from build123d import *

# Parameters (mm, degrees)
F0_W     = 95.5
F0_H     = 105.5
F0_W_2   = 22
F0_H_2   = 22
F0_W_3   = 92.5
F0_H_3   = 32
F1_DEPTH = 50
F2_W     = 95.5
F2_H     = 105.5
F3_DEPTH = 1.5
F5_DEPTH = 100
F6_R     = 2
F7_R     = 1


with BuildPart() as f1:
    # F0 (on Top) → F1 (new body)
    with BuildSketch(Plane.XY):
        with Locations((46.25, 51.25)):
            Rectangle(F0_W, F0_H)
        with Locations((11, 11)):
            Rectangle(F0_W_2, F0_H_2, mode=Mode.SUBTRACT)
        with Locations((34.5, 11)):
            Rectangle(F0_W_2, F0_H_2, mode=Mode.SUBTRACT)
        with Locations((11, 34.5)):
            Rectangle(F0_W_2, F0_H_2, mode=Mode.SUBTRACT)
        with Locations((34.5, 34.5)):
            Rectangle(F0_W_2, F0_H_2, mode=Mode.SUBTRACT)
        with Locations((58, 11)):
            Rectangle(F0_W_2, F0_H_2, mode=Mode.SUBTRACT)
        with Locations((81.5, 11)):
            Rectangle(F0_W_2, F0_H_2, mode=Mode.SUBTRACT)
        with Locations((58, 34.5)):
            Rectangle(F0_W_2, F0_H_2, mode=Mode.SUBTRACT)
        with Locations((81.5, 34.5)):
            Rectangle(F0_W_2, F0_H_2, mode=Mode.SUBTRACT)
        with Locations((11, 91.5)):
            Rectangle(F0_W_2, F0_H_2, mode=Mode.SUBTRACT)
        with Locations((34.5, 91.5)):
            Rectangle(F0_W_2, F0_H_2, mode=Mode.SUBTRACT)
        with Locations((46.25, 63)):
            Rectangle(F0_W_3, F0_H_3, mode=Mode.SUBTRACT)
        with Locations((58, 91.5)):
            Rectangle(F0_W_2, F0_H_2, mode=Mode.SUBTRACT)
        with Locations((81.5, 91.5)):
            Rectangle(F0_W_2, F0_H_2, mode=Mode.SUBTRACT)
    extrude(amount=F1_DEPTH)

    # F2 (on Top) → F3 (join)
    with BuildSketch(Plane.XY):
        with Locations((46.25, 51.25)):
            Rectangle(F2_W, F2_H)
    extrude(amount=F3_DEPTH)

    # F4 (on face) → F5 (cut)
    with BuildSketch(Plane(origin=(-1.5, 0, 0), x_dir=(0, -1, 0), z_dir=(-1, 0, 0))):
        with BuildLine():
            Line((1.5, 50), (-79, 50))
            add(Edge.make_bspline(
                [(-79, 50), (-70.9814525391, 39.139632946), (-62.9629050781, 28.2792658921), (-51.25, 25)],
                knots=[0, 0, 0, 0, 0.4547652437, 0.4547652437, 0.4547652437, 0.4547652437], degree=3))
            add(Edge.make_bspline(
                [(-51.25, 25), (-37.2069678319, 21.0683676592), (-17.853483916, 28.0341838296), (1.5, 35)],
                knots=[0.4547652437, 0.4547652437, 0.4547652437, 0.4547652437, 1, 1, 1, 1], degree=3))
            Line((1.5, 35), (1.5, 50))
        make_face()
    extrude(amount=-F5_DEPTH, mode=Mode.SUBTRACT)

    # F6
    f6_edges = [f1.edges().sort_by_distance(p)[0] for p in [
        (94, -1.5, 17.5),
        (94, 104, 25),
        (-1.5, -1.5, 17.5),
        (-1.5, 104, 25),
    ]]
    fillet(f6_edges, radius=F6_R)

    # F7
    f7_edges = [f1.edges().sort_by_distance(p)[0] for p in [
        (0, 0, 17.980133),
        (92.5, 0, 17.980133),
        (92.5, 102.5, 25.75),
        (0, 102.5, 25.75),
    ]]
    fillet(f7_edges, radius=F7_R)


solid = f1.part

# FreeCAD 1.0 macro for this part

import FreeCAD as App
import Part
import Sketcher


def edges_at(feature, points):
    """Names of the edges that pass closest to the given points."""
    edges = feature.Shape.Edges
    near = lambda p: min(range(len(edges)), key=lambda i: edges[i].distToShape(Part.Vertex(*p))[0])
    return sorted({f"Edge{near(p) + 1}" for p in points})

doc = App.newDocument("Part")
body = doc.addObject("PartDesign::Body", "Body")

# Sketch on XY plane
sketch1 = doc.addObject("Sketcher::SketchObject", "Sketch")
body.addObject(sketch1)
sketch1.AttachmentSupport = (doc.XY_Plane, [""])
sketch1.MapMode = "FlatFace"
sketch1.addGeometry(Part.LineSegment(App.Vector(-1.5, 104, 0), App.Vector(-1.5, -1.5, 0)), False)
sketch1.addGeometry(Part.LineSegment(App.Vector(-1.5, -1.5, 0), App.Vector(94, -1.5, 0)), False)
sketch1.addGeometry(Part.LineSegment(App.Vector(94, -1.5, 0), App.Vector(94, 104, 0)), False)
sketch1.addGeometry(Part.LineSegment(App.Vector(94, 104, 0), App.Vector(-1.5, 104, 0)), False)
sketch1.addGeometry(Part.LineSegment(App.Vector(22, 0, 0), App.Vector(0, 0, 0)), False)
sketch1.addGeometry(Part.LineSegment(App.Vector(0, 0, 0), App.Vector(0, 22, 0)), False)
sketch1.addGeometry(Part.LineSegment(App.Vector(0, 22, 0), App.Vector(22, 22, 0)), False)
sketch1.addGeometry(Part.LineSegment(App.Vector(22, 22, 0), App.Vector(22, 0, 0)), False)
sketch1.addGeometry(Part.LineSegment(App.Vector(45.5, 0, 0), App.Vector(23.5, 0, 0)), False)
sketch1.addGeometry(Part.LineSegment(App.Vector(23.5, 0, 0), App.Vector(23.5, 22, 0)), False)
sketch1.addGeometry(Part.LineSegment(App.Vector(23.5, 22, 0), App.Vector(45.5, 22, 0)), False)
sketch1.addGeometry(Part.LineSegment(App.Vector(45.5, 22, 0), App.Vector(45.5, 0, 0)), False)
sketch1.addGeometry(Part.LineSegment(App.Vector(22, 23.5, 0), App.Vector(0, 23.5, 0)), False)
sketch1.addGeometry(Part.LineSegment(App.Vector(0, 23.5, 0), App.Vector(0, 45.5, 0)), False)
sketch1.addGeometry(Part.LineSegment(App.Vector(0, 45.5, 0), App.Vector(22, 45.5, 0)), False)
sketch1.addGeometry(Part.LineSegment(App.Vector(22, 45.5, 0), App.Vector(22, 23.5, 0)), False)
sketch1.addGeometry(Part.LineSegment(App.Vector(45.5, 23.5, 0), App.Vector(23.5, 23.5, 0)), False)
sketch1.addGeometry(Part.LineSegment(App.Vector(23.5, 23.5, 0), App.Vector(23.5, 45.5, 0)), False)
sketch1.addGeometry(Part.LineSegment(App.Vector(23.5, 45.5, 0), App.Vector(45.5, 45.5, 0)), False)
sketch1.addGeometry(Part.LineSegment(App.Vector(45.5, 45.5, 0), App.Vector(45.5, 23.5, 0)), False)
sketch1.addGeometry(Part.LineSegment(App.Vector(69, 0, 0), App.Vector(47, 0, 0)), False)
sketch1.addGeometry(Part.LineSegment(App.Vector(47, 0, 0), App.Vector(47, 22, 0)), False)
sketch1.addGeometry(Part.LineSegment(App.Vector(47, 22, 0), App.Vector(69, 22, 0)), False)
sketch1.addGeometry(Part.LineSegment(App.Vector(69, 22, 0), App.Vector(69, 0, 0)), False)
sketch1.addGeometry(Part.LineSegment(App.Vector(92.5, 0, 0), App.Vector(70.5, 0, 0)), False)
sketch1.addGeometry(Part.LineSegment(App.Vector(70.5, 0, 0), App.Vector(70.5, 22, 0)), False)
sketch1.addGeometry(Part.LineSegment(App.Vector(70.5, 22, 0), App.Vector(92.5, 22, 0)), False)
sketch1.addGeometry(Part.LineSegment(App.Vector(92.5, 22, 0), App.Vector(92.5, 0, 0)), False)
sketch1.addGeometry(Part.LineSegment(App.Vector(69, 23.5, 0), App.Vector(47, 23.5, 0)), False)
sketch1.addGeometry(Part.LineSegment(App.Vector(47, 23.5, 0), App.Vector(47, 45.5, 0)), False)
sketch1.addGeometry(Part.LineSegment(App.Vector(47, 45.5, 0), App.Vector(69, 45.5, 0)), False)
sketch1.addGeometry(Part.LineSegment(App.Vector(69, 45.5, 0), App.Vector(69, 23.5, 0)), False)
sketch1.addGeometry(Part.LineSegment(App.Vector(92.5, 23.5, 0), App.Vector(70.5, 23.5, 0)), False)
sketch1.addGeometry(Part.LineSegment(App.Vector(70.5, 23.5, 0), App.Vector(70.5, 45.5, 0)), False)
sketch1.addGeometry(Part.LineSegment(App.Vector(70.5, 45.5, 0), App.Vector(92.5, 45.5, 0)), False)
sketch1.addGeometry(Part.LineSegment(App.Vector(92.5, 45.5, 0), App.Vector(92.5, 23.5, 0)), False)
sketch1.addGeometry(Part.LineSegment(App.Vector(22, 80.5, 0), App.Vector(0, 80.5, 0)), False)
sketch1.addGeometry(Part.LineSegment(App.Vector(0, 80.5, 0), App.Vector(0, 102.5, 0)), False)
sketch1.addGeometry(Part.LineSegment(App.Vector(0, 102.5, 0), App.Vector(22, 102.5, 0)), False)
sketch1.addGeometry(Part.LineSegment(App.Vector(22, 102.5, 0), App.Vector(22, 80.5, 0)), False)
sketch1.addGeometry(Part.LineSegment(App.Vector(45.5, 80.5, 0), App.Vector(23.5, 80.5, 0)), False)
sketch1.addGeometry(Part.LineSegment(App.Vector(23.5, 80.5, 0), App.Vector(23.5, 102.5, 0)), False)
sketch1.addGeometry(Part.LineSegment(App.Vector(23.5, 102.5, 0), App.Vector(45.5, 102.5, 0)), False)
sketch1.addGeometry(Part.LineSegment(App.Vector(45.5, 102.5, 0), App.Vector(45.5, 80.5, 0)), False)
sketch1.addGeometry(Part.LineSegment(App.Vector(92.5, 47, 0), App.Vector(0, 47, 0)), False)
sketch1.addGeometry(Part.LineSegment(App.Vector(0, 47, 0), App.Vector(0, 79, 0)), False)
sketch1.addGeometry(Part.LineSegment(App.Vector(0, 79, 0), App.Vector(92.5, 79, 0)), False)
sketch1.addGeometry(Part.LineSegment(App.Vector(92.5, 79, 0), App.Vector(92.5, 47, 0)), False)
sketch1.addGeometry(Part.LineSegment(App.Vector(69, 80.5, 0), App.Vector(47, 80.5, 0)), False)
sketch1.addGeometry(Part.LineSegment(App.Vector(47, 80.5, 0), App.Vector(47, 102.5, 0)), False)
sketch1.addGeometry(Part.LineSegment(App.Vector(47, 102.5, 0), App.Vector(69, 102.5, 0)), False)
sketch1.addGeometry(Part.LineSegment(App.Vector(69, 102.5, 0), App.Vector(69, 80.5, 0)), False)
sketch1.addGeometry(Part.LineSegment(App.Vector(92.5, 80.5, 0), App.Vector(70.5, 80.5, 0)), False)
sketch1.addGeometry(Part.LineSegment(App.Vector(70.5, 80.5, 0), App.Vector(70.5, 102.5, 0)), False)
sketch1.addGeometry(Part.LineSegment(App.Vector(70.5, 102.5, 0), App.Vector(92.5, 102.5, 0)), False)
sketch1.addGeometry(Part.LineSegment(App.Vector(92.5, 102.5, 0), App.Vector(92.5, 80.5, 0)), False)
sketch1.addConstraint(Sketcher.Constraint("Coincident", 0, 2, 1, 1))
sketch1.addConstraint(Sketcher.Constraint("Coincident", 1, 2, 2, 1))
sketch1.addConstraint(Sketcher.Constraint("Coincident", 2, 2, 3, 1))
sketch1.addConstraint(Sketcher.Constraint("Coincident", 3, 2, 0, 1))
sketch1.addConstraint(Sketcher.Constraint("Coincident", 4, 2, 5, 1))
sketch1.addConstraint(Sketcher.Constraint("Coincident", 5, 2, 6, 1))
sketch1.addConstraint(Sketcher.Constraint("Coincident", 6, 2, 7, 1))
sketch1.addConstraint(Sketcher.Constraint("Coincident", 7, 2, 4, 1))
sketch1.addConstraint(Sketcher.Constraint("Coincident", 8, 2, 9, 1))
sketch1.addConstraint(Sketcher.Constraint("Coincident", 9, 2, 10, 1))
sketch1.addConstraint(Sketcher.Constraint("Coincident", 10, 2, 11, 1))
sketch1.addConstraint(Sketcher.Constraint("Coincident", 11, 2, 8, 1))
sketch1.addConstraint(Sketcher.Constraint("Coincident", 12, 2, 13, 1))
sketch1.addConstraint(Sketcher.Constraint("Coincident", 13, 2, 14, 1))
sketch1.addConstraint(Sketcher.Constraint("Coincident", 14, 2, 15, 1))
sketch1.addConstraint(Sketcher.Constraint("Coincident", 15, 2, 12, 1))
sketch1.addConstraint(Sketcher.Constraint("Coincident", 16, 2, 17, 1))
sketch1.addConstraint(Sketcher.Constraint("Coincident", 17, 2, 18, 1))
sketch1.addConstraint(Sketcher.Constraint("Coincident", 18, 2, 19, 1))
sketch1.addConstraint(Sketcher.Constraint("Coincident", 19, 2, 16, 1))
sketch1.addConstraint(Sketcher.Constraint("Coincident", 20, 2, 21, 1))
sketch1.addConstraint(Sketcher.Constraint("Coincident", 21, 2, 22, 1))
sketch1.addConstraint(Sketcher.Constraint("Coincident", 22, 2, 23, 1))
sketch1.addConstraint(Sketcher.Constraint("Coincident", 23, 2, 20, 1))
sketch1.addConstraint(Sketcher.Constraint("Coincident", 24, 2, 25, 1))
sketch1.addConstraint(Sketcher.Constraint("Coincident", 25, 2, 26, 1))
sketch1.addConstraint(Sketcher.Constraint("Coincident", 26, 2, 27, 1))
sketch1.addConstraint(Sketcher.Constraint("Coincident", 27, 2, 24, 1))
sketch1.addConstraint(Sketcher.Constraint("Coincident", 28, 2, 29, 1))
sketch1.addConstraint(Sketcher.Constraint("Coincident", 29, 2, 30, 1))
sketch1.addConstraint(Sketcher.Constraint("Coincident", 30, 2, 31, 1))
sketch1.addConstraint(Sketcher.Constraint("Coincident", 31, 2, 28, 1))
sketch1.addConstraint(Sketcher.Constraint("Coincident", 32, 2, 33, 1))
sketch1.addConstraint(Sketcher.Constraint("Coincident", 33, 2, 34, 1))
sketch1.addConstraint(Sketcher.Constraint("Coincident", 34, 2, 35, 1))
sketch1.addConstraint(Sketcher.Constraint("Coincident", 35, 2, 32, 1))
sketch1.addConstraint(Sketcher.Constraint("Coincident", 36, 2, 37, 1))
sketch1.addConstraint(Sketcher.Constraint("Coincident", 37, 2, 38, 1))
sketch1.addConstraint(Sketcher.Constraint("Coincident", 38, 2, 39, 1))
sketch1.addConstraint(Sketcher.Constraint("Coincident", 39, 2, 36, 1))
sketch1.addConstraint(Sketcher.Constraint("Coincident", 40, 2, 41, 1))
sketch1.addConstraint(Sketcher.Constraint("Coincident", 41, 2, 42, 1))
sketch1.addConstraint(Sketcher.Constraint("Coincident", 42, 2, 43, 1))
sketch1.addConstraint(Sketcher.Constraint("Coincident", 43, 2, 40, 1))
sketch1.addConstraint(Sketcher.Constraint("Coincident", 44, 2, 45, 1))
sketch1.addConstraint(Sketcher.Constraint("Coincident", 45, 2, 46, 1))
sketch1.addConstraint(Sketcher.Constraint("Coincident", 46, 2, 47, 1))
sketch1.addConstraint(Sketcher.Constraint("Coincident", 47, 2, 44, 1))
sketch1.addConstraint(Sketcher.Constraint("Coincident", 48, 2, 49, 1))
sketch1.addConstraint(Sketcher.Constraint("Coincident", 49, 2, 50, 1))
sketch1.addConstraint(Sketcher.Constraint("Coincident", 50, 2, 51, 1))
sketch1.addConstraint(Sketcher.Constraint("Coincident", 51, 2, 48, 1))
sketch1.addConstraint(Sketcher.Constraint("Coincident", 52, 2, 53, 1))
sketch1.addConstraint(Sketcher.Constraint("Coincident", 53, 2, 54, 1))
sketch1.addConstraint(Sketcher.Constraint("Coincident", 54, 2, 55, 1))
sketch1.addConstraint(Sketcher.Constraint("Coincident", 55, 2, 52, 1))
sketch1.addConstraint(Sketcher.Constraint("Vertical", 0))
sketch1.addConstraint(Sketcher.Constraint("Horizontal", 1))
sketch1.addConstraint(Sketcher.Constraint("Vertical", 2))
sketch1.addConstraint(Sketcher.Constraint("Horizontal", 3))
sketch1.addConstraint(Sketcher.Constraint("Horizontal", 4))
sketch1.addConstraint(Sketcher.Constraint("Vertical", 5))
sketch1.addConstraint(Sketcher.Constraint("Horizontal", 6))
sketch1.addConstraint(Sketcher.Constraint("Vertical", 7))
sketch1.addConstraint(Sketcher.Constraint("Horizontal", 8))
sketch1.addConstraint(Sketcher.Constraint("Vertical", 9))
sketch1.addConstraint(Sketcher.Constraint("Horizontal", 10))
sketch1.addConstraint(Sketcher.Constraint("Vertical", 11))
sketch1.addConstraint(Sketcher.Constraint("Horizontal", 12))
sketch1.addConstraint(Sketcher.Constraint("Vertical", 13))
sketch1.addConstraint(Sketcher.Constraint("Horizontal", 14))
sketch1.addConstraint(Sketcher.Constraint("Vertical", 15))
sketch1.addConstraint(Sketcher.Constraint("Horizontal", 16))
sketch1.addConstraint(Sketcher.Constraint("Vertical", 17))
sketch1.addConstraint(Sketcher.Constraint("Horizontal", 18))
sketch1.addConstraint(Sketcher.Constraint("Vertical", 19))
sketch1.addConstraint(Sketcher.Constraint("Horizontal", 20))
sketch1.addConstraint(Sketcher.Constraint("Vertical", 21))
sketch1.addConstraint(Sketcher.Constraint("Horizontal", 22))
sketch1.addConstraint(Sketcher.Constraint("Vertical", 23))
sketch1.addConstraint(Sketcher.Constraint("Horizontal", 24))
sketch1.addConstraint(Sketcher.Constraint("Vertical", 25))
sketch1.addConstraint(Sketcher.Constraint("Horizontal", 26))
sketch1.addConstraint(Sketcher.Constraint("Vertical", 27))
sketch1.addConstraint(Sketcher.Constraint("Horizontal", 28))
sketch1.addConstraint(Sketcher.Constraint("Vertical", 29))
sketch1.addConstraint(Sketcher.Constraint("Horizontal", 30))
sketch1.addConstraint(Sketcher.Constraint("Vertical", 31))
sketch1.addConstraint(Sketcher.Constraint("Horizontal", 32))
sketch1.addConstraint(Sketcher.Constraint("Vertical", 33))
sketch1.addConstraint(Sketcher.Constraint("Horizontal", 34))
sketch1.addConstraint(Sketcher.Constraint("Vertical", 35))
sketch1.addConstraint(Sketcher.Constraint("Horizontal", 36))
sketch1.addConstraint(Sketcher.Constraint("Vertical", 37))
sketch1.addConstraint(Sketcher.Constraint("Horizontal", 38))
sketch1.addConstraint(Sketcher.Constraint("Vertical", 39))
sketch1.addConstraint(Sketcher.Constraint("Horizontal", 40))
sketch1.addConstraint(Sketcher.Constraint("Vertical", 41))
sketch1.addConstraint(Sketcher.Constraint("Horizontal", 42))
sketch1.addConstraint(Sketcher.Constraint("Vertical", 43))
sketch1.addConstraint(Sketcher.Constraint("Horizontal", 44))
sketch1.addConstraint(Sketcher.Constraint("Vertical", 45))
sketch1.addConstraint(Sketcher.Constraint("Horizontal", 46))
sketch1.addConstraint(Sketcher.Constraint("Vertical", 47))
sketch1.addConstraint(Sketcher.Constraint("Horizontal", 48))
sketch1.addConstraint(Sketcher.Constraint("Vertical", 49))
sketch1.addConstraint(Sketcher.Constraint("Horizontal", 50))
sketch1.addConstraint(Sketcher.Constraint("Vertical", 51))
sketch1.addConstraint(Sketcher.Constraint("Horizontal", 52))
sketch1.addConstraint(Sketcher.Constraint("Vertical", 53))
sketch1.addConstraint(Sketcher.Constraint("Horizontal", 54))
sketch1.addConstraint(Sketcher.Constraint("Vertical", 55))
sketch1.addConstraint(Sketcher.Constraint("Coincident", 4, 2, -1, 1))
sketch1.addConstraint(Sketcher.Constraint("PointOnObject", 8, 2, -1))
sketch1.addConstraint(Sketcher.Constraint("PointOnObject", 12, 2, -2))
sketch1.addConstraint(Sketcher.Constraint("PointOnObject", 20, 2, -1))
sketch1.addConstraint(Sketcher.Constraint("PointOnObject", 24, 2, -1))
sketch1.addConstraint(Sketcher.Constraint("PointOnObject", 36, 2, -2))
sketch1.addConstraint(Sketcher.Constraint("PointOnObject", 44, 2, -2))
sketch1.addConstraint(Sketcher.Constraint("Horizontal", 6, 2, 9, 2))
sketch1.addConstraint(Sketcher.Constraint("Horizontal", 15, 2, 16, 2))
sketch1.addConstraint(Sketcher.Constraint("Horizontal", 14, 2, 17, 2))
sketch1.addConstraint(Sketcher.Constraint("Horizontal", 10, 2, 21, 2))
sketch1.addConstraint(Sketcher.Constraint("Horizontal", 22, 2, 25, 2))
sketch1.addConstraint(Sketcher.Constraint("Horizontal", 19, 2, 28, 2))
sketch1.addConstraint(Sketcher.Constraint("Horizontal", 18, 2, 29, 2))
sketch1.addConstraint(Sketcher.Constraint("Horizontal", 31, 2, 32, 2))
sketch1.addConstraint(Sketcher.Constraint("Horizontal", 30, 2, 33, 2))
sketch1.addConstraint(Sketcher.Constraint("Horizontal", 39, 2, 40, 2))
sketch1.addConstraint(Sketcher.Constraint("Horizontal", 38, 2, 41, 2))
sketch1.addConstraint(Sketcher.Constraint("Horizontal", 43, 2, 48, 2))
sketch1.addConstraint(Sketcher.Constraint("Horizontal", 42, 2, 49, 2))
sketch1.addConstraint(Sketcher.Constraint("Horizontal", 51, 2, 52, 2))
sketch1.addConstraint(Sketcher.Constraint("Horizontal", 50, 2, 53, 2))
sketch1.addConstraint(Sketcher.Constraint("Vertical", 7, 2, 14, 2))
sketch1.addConstraint(Sketcher.Constraint("Vertical", 9, 2, 16, 2))
sketch1.addConstraint(Sketcher.Constraint("Vertical", 11, 2, 18, 2))
sketch1.addConstraint(Sketcher.Constraint("Vertical", 21, 2, 28, 2))
sketch1.addConstraint(Sketcher.Constraint("Vertical", 23, 2, 30, 2))
sketch1.addConstraint(Sketcher.Constraint("Vertical", 25, 2, 32, 2))
sketch1.addConstraint(Sketcher.Constraint("Vertical", 27, 2, 34, 2))
sketch1.addConstraint(Sketcher.Constraint("Vertical", 15, 2, 38, 2))
sketch1.addConstraint(Sketcher.Constraint("Vertical", 17, 2, 40, 2))
sketch1.addConstraint(Sketcher.Constraint("Vertical", 19, 2, 42, 2))
sketch1.addConstraint(Sketcher.Constraint("Vertical", 35, 2, 46, 2))
sketch1.addConstraint(Sketcher.Constraint("Vertical", 29, 2, 48, 2))
sketch1.addConstraint(Sketcher.Constraint("Vertical", 31, 2, 50, 2))
sketch1.addConstraint(Sketcher.Constraint("Vertical", 33, 2, 52, 2))
sketch1.addConstraint(Sketcher.Constraint("Vertical", 47, 2, 54, 2))
sketch1.addConstraint(Sketcher.Constraint("Equal", 6, 8))
sketch1.addConstraint(Sketcher.Constraint("Equal", 18, 20))
sketch1.addConstraint(Sketcher.Constraint("Equal", 22, 24))
sketch1.addConstraint(Sketcher.Constraint("Equal", 54, 5))
sketch1.addConstraint(Sketcher.Constraint("Equal", 11, 13))
sketch1.addConstraint(Sketcher.Constraint("Equal", 35, 37))
sketch1.addConstraint(Sketcher.Constraint("DistanceX", 4, 2, 4, 1, 22.0))
sketch1.addConstraint(Sketcher.Constraint("DistanceY", 45, 1, 45, 2, 32.0))
sketch1.addConstraint(Sketcher.Constraint("DistanceX", 1, 1, 1, 2, 95.5))
sketch1.addConstraint(Sketcher.Constraint("DistanceX", 44, 2, 44, 1, 92.5))
sketch1.addConstraint(Sketcher.Constraint("DistanceY", 0, 2, 0, 1, 105.5))
sketch1.addConstraint(Sketcher.Constraint("DistanceX", -1, 1, 1, 2, 94.0))
sketch1.addConstraint(Sketcher.Constraint("DistanceY", -1, 1, 2, 2, 104.0))
sketch1.addConstraint(Sketcher.Constraint("DistanceX", -1, 1, 20, 2, 47.0))
sketch1.addConstraint(Sketcher.Constraint("DistanceY", -1, 1, 44, 2, 47.0))
sketch1.addConstraint(Sketcher.Constraint("DistanceX", 0, 2, 8, 2, 25.0))
sketch1.addConstraint(Sketcher.Constraint("DistanceY", 0, 2, 12, 2, 25.0))
sketch1.addConstraint(Sketcher.Constraint("DistanceY", 13, 2, 36, 2, 35.0))
pad1 = doc.addObject("PartDesign::Pad", "Pad")
body.addObject(pad1)
pad1.Profile = sketch1
pad1.Length = 50

# Sketch on XY plane
sketch2 = doc.addObject("Sketcher::SketchObject", "Sketch001")
body.addObject(sketch2)
sketch2.AttachmentSupport = (doc.XY_Plane, [""])
sketch2.MapMode = "FlatFace"
sketch2.addGeometry(Part.LineSegment(App.Vector(-1.5, 104, 0), App.Vector(-1.5, -1.5, 0)), False)
sketch2.addGeometry(Part.LineSegment(App.Vector(-1.5, -1.5, 0), App.Vector(94, -1.5, 0)), False)
sketch2.addGeometry(Part.LineSegment(App.Vector(94, -1.5, 0), App.Vector(94, 104, 0)), False)
sketch2.addGeometry(Part.LineSegment(App.Vector(94, 104, 0), App.Vector(-1.5, 104, 0)), False)
sketch2.addConstraint(Sketcher.Constraint("Coincident", 0, 2, 1, 1))
sketch2.addConstraint(Sketcher.Constraint("Coincident", 1, 2, 2, 1))
sketch2.addConstraint(Sketcher.Constraint("Coincident", 2, 2, 3, 1))
sketch2.addConstraint(Sketcher.Constraint("Coincident", 3, 2, 0, 1))
sketch2.addConstraint(Sketcher.Constraint("Vertical", 0))
sketch2.addConstraint(Sketcher.Constraint("Horizontal", 1))
sketch2.addConstraint(Sketcher.Constraint("Vertical", 2))
sketch2.addConstraint(Sketcher.Constraint("Horizontal", 3))
sketch2.addConstraint(Sketcher.Constraint("DistanceX", 1, 1, 1, 2, 95.5))
sketch2.addConstraint(Sketcher.Constraint("DistanceY", 0, 2, 0, 1, 105.5))
sketch2.addConstraint(Sketcher.Constraint("DistanceX", -1, 1, 1, 2, 94.0))
sketch2.addConstraint(Sketcher.Constraint("DistanceY", -1, 1, 2, 2, 104.0))
pad2 = doc.addObject("PartDesign::Pad", "Pad001")
body.addObject(pad2)
pad2.Profile = sketch2
pad2.Length = 1.5

# Sketch on YZ plane
sketch3 = doc.addObject("Sketcher::SketchObject", "Sketch002")
body.addObject(sketch3)
sketch3.AttachmentSupport = (doc.YZ_Plane, [""])
sketch3.MapMode = "FlatFace"
sketch3.AttachmentOffset = App.Placement(App.Vector(0, 0, -1.5), App.Rotation())
sketch3.addGeometry(Part.LineSegment(App.Vector(-1.5, 50, 0), App.Vector(79, 50, 0)), False)
sketch3.addGeometry(Part.BSplineCurve([App.Vector(79, 50, 0), App.Vector(70.981453, 39.139633, 0), App.Vector(62.962905, 28.279266, 0), App.Vector(51.25, 25, 0)], [4, 4], [0, 0.454765244], False, 3, [1, 1, 1, 1], False), False)
sketch3.addGeometry(Part.BSplineCurve([App.Vector(51.25, 25, 0), App.Vector(37.206968, 21.068368, 0), App.Vector(17.853484, 28.034184, 0), App.Vector(-1.5, 35, 0)], [4, 4], [0.454765244, 1], False, 3, [1, 1, 1, 1], False), False)
sketch3.addGeometry(Part.LineSegment(App.Vector(-1.5, 35, 0), App.Vector(-1.5, 50, 0)), False)
sketch3.addConstraint(Sketcher.Constraint("Block", 1))
sketch3.addConstraint(Sketcher.Constraint("Block", 2))
sketch3.addConstraint(Sketcher.Constraint("Coincident", 0, 2, 1, 1))
sketch3.addConstraint(Sketcher.Constraint("Coincident", 2, 2, 3, 1))
sketch3.addConstraint(Sketcher.Constraint("Coincident", 3, 2, 0, 1))
sketch3.addConstraint(Sketcher.Constraint("Horizontal", 0))
sketch3.addConstraint(Sketcher.Constraint("Vertical", 3))
pocket1 = doc.addObject("PartDesign::Pocket", "Pocket")
body.addObject(pocket1)
pocket1.Profile = sketch3
pocket1.Length = 100
pocket1.Reversed = True
doc.recompute()

fillet = doc.addObject("PartDesign::Fillet", "Fillet")
body.addObject(fillet)
fillet.Base = (pocket1, edges_at(pocket1, [
    (94, -1.5, 17.5),
    (94, 104, 25),
    (-1.5, -1.5, 17.5),
    (-1.5, 104, 25),
]))
fillet.Radius = 2
doc.recompute()

fillet2 = doc.addObject("PartDesign::Fillet", "Fillet001")
body.addObject(fillet2)
fillet2.Base = (fillet, edges_at(fillet, [
    (0, 0, 17.98),
    (92.5, 0, 17.98),
    (92.5, 102.5, 25.75),
    (0, 102.5, 25.75),
]))
fillet2.Radius = 1

doc.recompute()
